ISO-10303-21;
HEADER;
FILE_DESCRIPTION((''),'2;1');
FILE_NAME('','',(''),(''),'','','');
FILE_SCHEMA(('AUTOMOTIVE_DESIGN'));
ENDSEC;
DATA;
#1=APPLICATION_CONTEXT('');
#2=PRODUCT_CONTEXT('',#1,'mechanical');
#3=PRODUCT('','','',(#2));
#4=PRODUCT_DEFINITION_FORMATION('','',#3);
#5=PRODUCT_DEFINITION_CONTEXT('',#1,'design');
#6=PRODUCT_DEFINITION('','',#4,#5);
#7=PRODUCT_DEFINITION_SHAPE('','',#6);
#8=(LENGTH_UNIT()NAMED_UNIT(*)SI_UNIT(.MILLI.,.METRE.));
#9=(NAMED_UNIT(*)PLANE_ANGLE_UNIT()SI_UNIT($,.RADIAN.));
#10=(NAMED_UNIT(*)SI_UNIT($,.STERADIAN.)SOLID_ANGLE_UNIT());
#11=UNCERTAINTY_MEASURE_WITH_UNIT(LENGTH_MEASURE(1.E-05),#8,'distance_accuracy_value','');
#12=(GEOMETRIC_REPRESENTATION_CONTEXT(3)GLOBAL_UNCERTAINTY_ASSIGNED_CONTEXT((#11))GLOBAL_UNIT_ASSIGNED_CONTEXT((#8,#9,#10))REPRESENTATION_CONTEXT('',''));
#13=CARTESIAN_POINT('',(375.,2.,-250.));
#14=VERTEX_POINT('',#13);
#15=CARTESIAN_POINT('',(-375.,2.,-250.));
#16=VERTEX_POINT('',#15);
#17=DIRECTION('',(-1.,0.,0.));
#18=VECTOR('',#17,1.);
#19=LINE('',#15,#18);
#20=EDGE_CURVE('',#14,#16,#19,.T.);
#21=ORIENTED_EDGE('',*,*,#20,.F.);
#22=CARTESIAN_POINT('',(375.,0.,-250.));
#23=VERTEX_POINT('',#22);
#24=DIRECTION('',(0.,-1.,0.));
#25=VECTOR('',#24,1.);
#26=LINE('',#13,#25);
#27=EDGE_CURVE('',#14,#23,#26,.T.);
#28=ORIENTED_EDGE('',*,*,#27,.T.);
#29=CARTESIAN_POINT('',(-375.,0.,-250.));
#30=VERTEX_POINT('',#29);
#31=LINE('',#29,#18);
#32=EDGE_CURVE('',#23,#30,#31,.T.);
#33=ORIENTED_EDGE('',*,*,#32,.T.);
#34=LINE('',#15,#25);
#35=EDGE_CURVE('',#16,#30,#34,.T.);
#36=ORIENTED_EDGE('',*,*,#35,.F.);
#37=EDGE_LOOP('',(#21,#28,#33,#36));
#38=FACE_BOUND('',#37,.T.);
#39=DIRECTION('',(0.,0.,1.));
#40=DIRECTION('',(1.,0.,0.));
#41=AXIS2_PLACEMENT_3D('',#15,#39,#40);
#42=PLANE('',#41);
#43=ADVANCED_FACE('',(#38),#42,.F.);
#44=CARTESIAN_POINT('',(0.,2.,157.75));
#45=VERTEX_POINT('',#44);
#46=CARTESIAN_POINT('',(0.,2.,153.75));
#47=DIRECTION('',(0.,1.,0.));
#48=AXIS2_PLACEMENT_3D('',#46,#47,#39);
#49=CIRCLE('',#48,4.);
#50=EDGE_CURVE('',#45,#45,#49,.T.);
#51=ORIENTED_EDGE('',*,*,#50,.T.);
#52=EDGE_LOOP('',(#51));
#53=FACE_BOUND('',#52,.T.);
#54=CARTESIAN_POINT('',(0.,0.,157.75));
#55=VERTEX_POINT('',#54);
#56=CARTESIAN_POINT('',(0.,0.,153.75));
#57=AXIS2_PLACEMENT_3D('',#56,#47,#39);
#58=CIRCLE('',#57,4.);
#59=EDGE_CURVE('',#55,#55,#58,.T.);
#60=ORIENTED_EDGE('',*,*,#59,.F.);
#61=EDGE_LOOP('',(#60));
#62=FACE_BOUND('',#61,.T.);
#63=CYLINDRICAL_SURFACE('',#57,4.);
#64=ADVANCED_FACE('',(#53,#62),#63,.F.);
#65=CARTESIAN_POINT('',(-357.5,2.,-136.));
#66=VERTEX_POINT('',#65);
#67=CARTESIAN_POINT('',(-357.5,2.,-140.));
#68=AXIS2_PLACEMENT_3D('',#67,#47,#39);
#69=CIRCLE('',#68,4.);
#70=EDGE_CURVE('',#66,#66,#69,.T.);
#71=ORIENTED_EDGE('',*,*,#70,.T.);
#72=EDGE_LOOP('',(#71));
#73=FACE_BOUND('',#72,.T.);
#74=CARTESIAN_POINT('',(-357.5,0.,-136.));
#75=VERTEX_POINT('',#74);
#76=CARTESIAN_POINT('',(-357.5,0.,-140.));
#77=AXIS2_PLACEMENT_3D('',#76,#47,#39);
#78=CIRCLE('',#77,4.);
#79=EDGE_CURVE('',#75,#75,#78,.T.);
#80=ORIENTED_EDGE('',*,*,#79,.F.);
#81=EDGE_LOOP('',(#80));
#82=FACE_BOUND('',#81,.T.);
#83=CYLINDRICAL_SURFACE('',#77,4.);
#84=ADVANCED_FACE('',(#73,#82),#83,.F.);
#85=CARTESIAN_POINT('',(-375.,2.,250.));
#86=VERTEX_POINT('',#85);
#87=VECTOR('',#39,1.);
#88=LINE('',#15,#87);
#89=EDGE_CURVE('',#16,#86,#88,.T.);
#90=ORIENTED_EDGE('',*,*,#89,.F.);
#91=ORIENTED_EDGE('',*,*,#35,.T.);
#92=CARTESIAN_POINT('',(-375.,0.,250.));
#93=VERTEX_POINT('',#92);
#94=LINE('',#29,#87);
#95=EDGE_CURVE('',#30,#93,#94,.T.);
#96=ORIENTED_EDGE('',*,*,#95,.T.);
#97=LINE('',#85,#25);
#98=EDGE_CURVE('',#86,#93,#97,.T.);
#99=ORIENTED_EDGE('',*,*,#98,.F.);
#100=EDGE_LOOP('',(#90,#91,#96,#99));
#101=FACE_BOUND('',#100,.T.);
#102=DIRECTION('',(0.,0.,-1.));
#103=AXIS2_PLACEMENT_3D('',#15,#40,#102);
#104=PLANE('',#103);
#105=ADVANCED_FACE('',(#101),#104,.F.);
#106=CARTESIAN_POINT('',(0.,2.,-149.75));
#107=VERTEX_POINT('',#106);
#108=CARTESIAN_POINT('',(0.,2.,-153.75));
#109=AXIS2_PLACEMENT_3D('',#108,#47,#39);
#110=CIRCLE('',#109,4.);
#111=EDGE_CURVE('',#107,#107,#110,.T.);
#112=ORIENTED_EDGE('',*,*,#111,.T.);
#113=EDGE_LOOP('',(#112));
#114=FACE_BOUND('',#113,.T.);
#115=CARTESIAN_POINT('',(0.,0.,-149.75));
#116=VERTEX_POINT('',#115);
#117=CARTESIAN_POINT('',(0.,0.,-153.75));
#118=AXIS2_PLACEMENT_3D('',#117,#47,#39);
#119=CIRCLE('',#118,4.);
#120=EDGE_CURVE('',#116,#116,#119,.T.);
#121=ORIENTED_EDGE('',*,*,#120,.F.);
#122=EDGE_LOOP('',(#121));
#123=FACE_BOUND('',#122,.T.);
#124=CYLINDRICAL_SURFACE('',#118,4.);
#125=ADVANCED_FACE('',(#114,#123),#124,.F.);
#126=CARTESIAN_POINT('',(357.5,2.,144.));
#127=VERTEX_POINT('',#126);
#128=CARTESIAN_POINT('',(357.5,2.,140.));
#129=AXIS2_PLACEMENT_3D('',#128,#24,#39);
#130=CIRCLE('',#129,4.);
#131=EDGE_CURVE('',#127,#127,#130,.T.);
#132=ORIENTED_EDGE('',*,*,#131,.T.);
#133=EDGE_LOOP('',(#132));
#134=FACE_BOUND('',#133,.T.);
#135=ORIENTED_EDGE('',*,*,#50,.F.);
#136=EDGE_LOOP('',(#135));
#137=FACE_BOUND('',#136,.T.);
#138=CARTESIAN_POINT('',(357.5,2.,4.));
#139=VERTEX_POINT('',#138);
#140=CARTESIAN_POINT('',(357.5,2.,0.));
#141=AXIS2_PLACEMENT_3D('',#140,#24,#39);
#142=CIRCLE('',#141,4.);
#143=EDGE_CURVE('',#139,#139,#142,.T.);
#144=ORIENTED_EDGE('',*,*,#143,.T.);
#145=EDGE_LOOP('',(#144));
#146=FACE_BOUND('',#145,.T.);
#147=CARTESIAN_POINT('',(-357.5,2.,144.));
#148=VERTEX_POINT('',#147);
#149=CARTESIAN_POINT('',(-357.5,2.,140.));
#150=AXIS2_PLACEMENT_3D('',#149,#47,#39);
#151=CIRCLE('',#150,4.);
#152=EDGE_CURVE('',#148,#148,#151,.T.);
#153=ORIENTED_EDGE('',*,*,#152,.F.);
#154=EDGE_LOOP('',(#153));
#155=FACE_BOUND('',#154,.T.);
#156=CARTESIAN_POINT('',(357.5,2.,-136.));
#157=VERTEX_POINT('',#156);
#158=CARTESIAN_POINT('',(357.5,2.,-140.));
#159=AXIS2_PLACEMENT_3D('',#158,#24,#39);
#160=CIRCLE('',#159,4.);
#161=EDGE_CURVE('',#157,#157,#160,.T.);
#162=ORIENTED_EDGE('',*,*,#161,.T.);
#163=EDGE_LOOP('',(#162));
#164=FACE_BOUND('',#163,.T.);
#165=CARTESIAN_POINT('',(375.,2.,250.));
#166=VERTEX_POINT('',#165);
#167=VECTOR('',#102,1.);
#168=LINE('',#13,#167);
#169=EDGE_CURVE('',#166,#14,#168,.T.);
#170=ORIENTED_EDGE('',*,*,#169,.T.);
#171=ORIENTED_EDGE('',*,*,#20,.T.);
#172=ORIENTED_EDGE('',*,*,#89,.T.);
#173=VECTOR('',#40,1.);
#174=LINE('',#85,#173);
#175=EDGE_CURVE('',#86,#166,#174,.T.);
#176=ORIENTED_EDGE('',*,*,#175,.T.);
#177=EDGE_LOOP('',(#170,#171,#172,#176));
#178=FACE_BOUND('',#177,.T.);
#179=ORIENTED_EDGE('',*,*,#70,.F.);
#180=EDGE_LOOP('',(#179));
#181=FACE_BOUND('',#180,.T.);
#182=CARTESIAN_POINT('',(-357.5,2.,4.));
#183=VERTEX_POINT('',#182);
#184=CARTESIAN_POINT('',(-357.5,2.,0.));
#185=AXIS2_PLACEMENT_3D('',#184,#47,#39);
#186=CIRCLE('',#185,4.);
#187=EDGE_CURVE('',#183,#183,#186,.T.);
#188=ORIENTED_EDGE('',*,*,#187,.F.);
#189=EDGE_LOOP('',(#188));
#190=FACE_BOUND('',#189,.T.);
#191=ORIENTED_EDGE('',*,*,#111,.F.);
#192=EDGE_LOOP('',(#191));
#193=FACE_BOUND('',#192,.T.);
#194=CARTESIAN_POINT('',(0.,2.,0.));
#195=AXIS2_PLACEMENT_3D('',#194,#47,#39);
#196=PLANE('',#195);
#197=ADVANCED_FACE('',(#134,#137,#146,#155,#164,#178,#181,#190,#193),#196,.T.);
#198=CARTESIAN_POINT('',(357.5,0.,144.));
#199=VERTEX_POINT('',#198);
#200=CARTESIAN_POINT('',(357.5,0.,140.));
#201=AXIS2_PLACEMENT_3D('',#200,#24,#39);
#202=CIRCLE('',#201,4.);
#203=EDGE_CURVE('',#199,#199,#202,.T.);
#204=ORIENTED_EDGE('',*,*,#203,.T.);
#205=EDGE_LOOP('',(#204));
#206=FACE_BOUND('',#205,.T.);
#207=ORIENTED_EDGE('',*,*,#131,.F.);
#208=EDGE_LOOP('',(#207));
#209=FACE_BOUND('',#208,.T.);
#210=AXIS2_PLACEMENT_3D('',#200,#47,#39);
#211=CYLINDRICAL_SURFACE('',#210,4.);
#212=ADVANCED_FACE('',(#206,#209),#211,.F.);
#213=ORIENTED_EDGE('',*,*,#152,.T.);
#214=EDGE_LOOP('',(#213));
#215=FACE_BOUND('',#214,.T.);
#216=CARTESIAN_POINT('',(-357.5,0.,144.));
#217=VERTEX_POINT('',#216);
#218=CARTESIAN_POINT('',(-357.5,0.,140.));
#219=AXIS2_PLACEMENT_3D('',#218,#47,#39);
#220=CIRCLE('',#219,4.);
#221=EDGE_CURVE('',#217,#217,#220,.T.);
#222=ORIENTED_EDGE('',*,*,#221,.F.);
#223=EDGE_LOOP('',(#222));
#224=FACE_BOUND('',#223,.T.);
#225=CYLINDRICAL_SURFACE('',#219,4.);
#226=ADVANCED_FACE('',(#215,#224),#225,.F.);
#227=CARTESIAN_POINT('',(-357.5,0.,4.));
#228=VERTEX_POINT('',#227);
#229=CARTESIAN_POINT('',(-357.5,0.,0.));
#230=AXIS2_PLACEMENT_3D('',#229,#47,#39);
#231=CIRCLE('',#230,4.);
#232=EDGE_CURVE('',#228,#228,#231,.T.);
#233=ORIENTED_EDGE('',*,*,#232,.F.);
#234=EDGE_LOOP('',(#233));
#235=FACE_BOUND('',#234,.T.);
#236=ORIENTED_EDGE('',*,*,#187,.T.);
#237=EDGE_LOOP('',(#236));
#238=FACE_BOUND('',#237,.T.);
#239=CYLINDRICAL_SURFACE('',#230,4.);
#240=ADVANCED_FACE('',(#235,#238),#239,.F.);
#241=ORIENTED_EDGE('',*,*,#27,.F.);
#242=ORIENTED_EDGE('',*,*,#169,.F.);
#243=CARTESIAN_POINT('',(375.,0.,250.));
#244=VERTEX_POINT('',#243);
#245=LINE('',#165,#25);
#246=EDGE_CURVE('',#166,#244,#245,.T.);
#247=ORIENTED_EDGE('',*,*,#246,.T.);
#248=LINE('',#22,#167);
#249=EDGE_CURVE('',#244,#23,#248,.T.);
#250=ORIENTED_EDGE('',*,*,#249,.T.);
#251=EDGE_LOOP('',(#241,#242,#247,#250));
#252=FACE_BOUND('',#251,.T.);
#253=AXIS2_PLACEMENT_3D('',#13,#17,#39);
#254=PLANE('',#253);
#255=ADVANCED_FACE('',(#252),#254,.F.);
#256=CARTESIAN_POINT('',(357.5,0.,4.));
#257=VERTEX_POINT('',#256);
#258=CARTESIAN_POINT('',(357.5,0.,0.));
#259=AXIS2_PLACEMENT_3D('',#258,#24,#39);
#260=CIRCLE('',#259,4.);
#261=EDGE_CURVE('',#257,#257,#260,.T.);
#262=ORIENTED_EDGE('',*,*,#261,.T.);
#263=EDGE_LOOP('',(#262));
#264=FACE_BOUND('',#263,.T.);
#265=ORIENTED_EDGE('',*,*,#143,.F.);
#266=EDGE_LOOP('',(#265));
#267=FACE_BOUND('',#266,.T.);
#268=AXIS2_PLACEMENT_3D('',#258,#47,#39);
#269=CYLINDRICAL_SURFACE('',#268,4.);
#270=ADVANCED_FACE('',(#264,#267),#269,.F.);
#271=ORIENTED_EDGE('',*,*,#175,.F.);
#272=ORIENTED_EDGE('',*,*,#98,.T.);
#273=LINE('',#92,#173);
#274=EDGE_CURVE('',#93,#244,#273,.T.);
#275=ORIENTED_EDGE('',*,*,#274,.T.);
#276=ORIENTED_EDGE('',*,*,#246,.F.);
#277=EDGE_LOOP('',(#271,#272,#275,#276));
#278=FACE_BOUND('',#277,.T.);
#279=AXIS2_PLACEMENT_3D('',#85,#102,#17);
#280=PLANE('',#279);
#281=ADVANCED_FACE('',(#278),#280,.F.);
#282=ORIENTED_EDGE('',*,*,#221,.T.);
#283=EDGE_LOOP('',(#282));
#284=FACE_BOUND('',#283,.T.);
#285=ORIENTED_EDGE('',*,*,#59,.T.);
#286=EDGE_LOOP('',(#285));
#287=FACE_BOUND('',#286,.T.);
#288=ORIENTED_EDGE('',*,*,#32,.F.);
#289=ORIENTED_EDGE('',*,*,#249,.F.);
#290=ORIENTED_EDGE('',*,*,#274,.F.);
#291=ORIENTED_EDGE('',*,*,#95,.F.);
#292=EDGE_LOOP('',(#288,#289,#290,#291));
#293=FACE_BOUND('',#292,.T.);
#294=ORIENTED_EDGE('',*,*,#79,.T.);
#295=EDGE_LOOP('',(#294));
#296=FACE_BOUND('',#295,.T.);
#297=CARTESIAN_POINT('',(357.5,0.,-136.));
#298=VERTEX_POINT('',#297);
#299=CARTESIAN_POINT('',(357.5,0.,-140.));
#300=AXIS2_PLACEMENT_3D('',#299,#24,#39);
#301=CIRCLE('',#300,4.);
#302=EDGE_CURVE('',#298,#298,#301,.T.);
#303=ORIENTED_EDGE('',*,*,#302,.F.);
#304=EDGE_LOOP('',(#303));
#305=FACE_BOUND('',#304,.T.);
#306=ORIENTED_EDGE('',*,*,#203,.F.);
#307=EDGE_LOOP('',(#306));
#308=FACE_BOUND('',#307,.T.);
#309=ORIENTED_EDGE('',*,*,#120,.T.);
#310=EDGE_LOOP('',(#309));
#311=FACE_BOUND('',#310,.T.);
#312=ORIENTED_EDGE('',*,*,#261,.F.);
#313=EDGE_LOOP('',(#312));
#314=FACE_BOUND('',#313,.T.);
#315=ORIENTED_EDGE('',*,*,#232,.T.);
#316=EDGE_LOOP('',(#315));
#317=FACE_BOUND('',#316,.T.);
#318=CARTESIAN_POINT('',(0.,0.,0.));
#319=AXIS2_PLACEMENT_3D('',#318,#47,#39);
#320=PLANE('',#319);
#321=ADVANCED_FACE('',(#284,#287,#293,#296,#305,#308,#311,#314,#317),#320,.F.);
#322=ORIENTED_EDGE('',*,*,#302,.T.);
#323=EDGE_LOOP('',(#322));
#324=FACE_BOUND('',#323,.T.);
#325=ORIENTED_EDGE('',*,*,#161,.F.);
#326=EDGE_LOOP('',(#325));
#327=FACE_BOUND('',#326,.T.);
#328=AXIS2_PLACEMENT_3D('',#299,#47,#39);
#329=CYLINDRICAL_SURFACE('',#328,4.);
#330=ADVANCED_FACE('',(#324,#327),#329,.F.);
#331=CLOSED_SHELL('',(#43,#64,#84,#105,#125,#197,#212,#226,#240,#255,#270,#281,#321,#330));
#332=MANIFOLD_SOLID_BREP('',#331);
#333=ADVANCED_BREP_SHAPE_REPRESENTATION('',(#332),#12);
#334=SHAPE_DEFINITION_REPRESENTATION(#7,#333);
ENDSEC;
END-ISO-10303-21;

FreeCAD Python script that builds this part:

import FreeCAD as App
import Part
import Sketcher

V = App.Vector
Q = App.Units.Quantity


def add_polygon(sketch, points):
    """Adds a closed chain of lines whose ends are joined by coincident constraints."""
    first, n = sketch.GeometryCount, len(points)
    for a, b in zip(points, points[1:] + points[:1]):
        sketch.addGeometry(Part.LineSegment(App.Vector(*a, 0), App.Vector(*b, 0)), False)
    for i in range(n):
        sketch.addConstraint(Sketcher.Constraint("Coincident", first + i, 2, first + (i + 1) % n, 1))

doc = App.newDocument("Part")
params = doc.addObject("Spreadsheet::Sheet", "Params")
for row, (alias, value) in enumerate([
    ("sketch1_width", "750 mm"),
    ("sketch1_height", "500 mm"),
    ("pad1_length", "2 mm"),
    ("sketch2_diameter", "8 mm"),
    ("pocket1_length", "2 mm"),
    ("sketch3_diameter", "8 mm"),
    ("pocket2_length", "2 mm"),
], start=1):
    params.set(f"A{row}", alias)
    params.set(f"B{row}", "=" + value)
    params.setAlias(f"B{row}", alias)

body = doc.addObject("PartDesign::Body", "Body")

sketch1 = doc.addObject("Sketcher::SketchObject", "Sketch")
body.addObject(sketch1)
sketch1.AttachmentSupport = (doc.XZ_Plane, [""])
sketch1.MapMode = "FlatFace"
add_polygon(sketch1, [(-375, -250), (-375, 250), (375, 250), (375, -250)])
sketch1.addConstraint(Sketcher.Constraint("Vertical", 0))
sketch1.addConstraint(Sketcher.Constraint("Horizontal", 1))
sketch1.addConstraint(Sketcher.Constraint("Vertical", 2))
sketch1.addConstraint(Sketcher.Constraint("Horizontal", 3))
sketch1.addConstraint(Sketcher.Constraint("Symmetric", 0, 2, 2, 2, -1, 1))
sketch1.addConstraint(Sketcher.Constraint("DistanceX", 1, 1, 1, 2, Q("750 mm")))
sketch1.addConstraint(Sketcher.Constraint("DistanceY", 0, 1, 0, 2, Q("500 mm")))
sketch1.setExpression("Constraints[9]", "Params.sketch1_width")
sketch1.setExpression("Constraints[10]", "Params.sketch1_height")
pad1 = doc.addObject("PartDesign::Pad", "Pad")
body.addObject(pad1)
pad1.Profile = sketch1
pad1.setExpression("Length", "Params.pad1_length")
pad1.Reversed = True

sketch2 = doc.addObject("Sketcher::SketchObject", "Sketch001")
body.addObject(sketch2)
sketch2.AttachmentSupport = (doc.XZ_Plane, [""])
sketch2.MapMode = "FlatFace"
sketch2.AttachmentOffset = App.Placement(V(0, 0, -2), App.Rotation())
sketch2.addGeometry(Part.Circle(V(-357.5, 0, 0), V(0, 0, 1), 4), False)
sketch2.addGeometry(Part.Circle(V(-357.5, -140, 0), V(0, 0, 1), 4), False)
sketch2.addGeometry(Part.Circle(V(-357.5, 140, 0), V(0, 0, 1), 4), False)
sketch2.addConstraint(Sketcher.Constraint("Equal", 0, 1))
sketch2.addConstraint(Sketcher.Constraint("Equal", 1, 2))
sketch2.addConstraint(Sketcher.Constraint("Symmetric", 1, 3, 2, 3, -1))
sketch2.addConstraint(Sketcher.Constraint("PointOnObject", 0, 3, -1))
sketch2.addConstraint(Sketcher.Constraint("Vertical", 0, 3, 1, 3))
sketch2.addConstraint(Sketcher.Constraint("Diameter", 0, Q("8 mm")))
sketch2.addConstraint(Sketcher.Constraint("DistanceY", 1, 3, -1, 1, Q("140 mm")))
sketch2.addConstraint(Sketcher.Constraint("DistanceX", 0, 3, -1, 1, Q("357.5 mm")))
sketch2.setExpression("Constraints[5]", "Params.sketch2_diameter")
pocket1 = doc.addObject("PartDesign::Pocket", "Pocket")
body.addObject(pocket1)
pocket1.Profile = sketch2
pocket1.setExpression("Length", "Params.pocket1_length")
pocket1.Reversed = True
doc.recompute()

mirrored = doc.addObject("PartDesign::Mirrored", "Mirrored")
body.addObject(mirrored)
mirrored.Originals = [pocket1]
mirrored.MirrorPlane = (doc.YZ_Plane, [""])
body.Tip = mirrored

sketch3 = doc.addObject("Sketcher::SketchObject", "Sketch002")
body.addObject(sketch3)
sketch3.AttachmentSupport = (doc.XZ_Plane, [""])
sketch3.MapMode = "FlatFace"
sketch3.AttachmentOffset = App.Placement(V(0, 0, -2), App.Rotation())
sketch3.addGeometry(Part.Circle(V(0, -153.8, 0), V(0, 0, 1), 4), False)
sketch3.addGeometry(Part.Circle(V(0, 153.8, 0), V(0, 0, 1), 4), False)
sketch3.addConstraint(Sketcher.Constraint("Equal", 0, 1))
sketch3.addConstraint(Sketcher.Constraint("Symmetric", 0, 3, 1, 3, -1, 1))
sketch3.addConstraint(Sketcher.Constraint("PointOnObject", 0, 3, -2))
sketch3.addConstraint(Sketcher.Constraint("Diameter", 0, Q("8 mm")))
sketch3.addConstraint(Sketcher.Constraint("DistanceY", 0, 3, 1, 3, Q("307.5 mm")))
sketch3.setExpression("Constraints[3]", "Params.sketch3_diameter")
pocket2 = doc.addObject("PartDesign::Pocket", "Pocket001")
body.addObject(pocket2)
pocket2.Profile = sketch3
pocket2.setExpression("Length", "Params.pocket2_length")
pocket2.Reversed = True

doc.recompute()
